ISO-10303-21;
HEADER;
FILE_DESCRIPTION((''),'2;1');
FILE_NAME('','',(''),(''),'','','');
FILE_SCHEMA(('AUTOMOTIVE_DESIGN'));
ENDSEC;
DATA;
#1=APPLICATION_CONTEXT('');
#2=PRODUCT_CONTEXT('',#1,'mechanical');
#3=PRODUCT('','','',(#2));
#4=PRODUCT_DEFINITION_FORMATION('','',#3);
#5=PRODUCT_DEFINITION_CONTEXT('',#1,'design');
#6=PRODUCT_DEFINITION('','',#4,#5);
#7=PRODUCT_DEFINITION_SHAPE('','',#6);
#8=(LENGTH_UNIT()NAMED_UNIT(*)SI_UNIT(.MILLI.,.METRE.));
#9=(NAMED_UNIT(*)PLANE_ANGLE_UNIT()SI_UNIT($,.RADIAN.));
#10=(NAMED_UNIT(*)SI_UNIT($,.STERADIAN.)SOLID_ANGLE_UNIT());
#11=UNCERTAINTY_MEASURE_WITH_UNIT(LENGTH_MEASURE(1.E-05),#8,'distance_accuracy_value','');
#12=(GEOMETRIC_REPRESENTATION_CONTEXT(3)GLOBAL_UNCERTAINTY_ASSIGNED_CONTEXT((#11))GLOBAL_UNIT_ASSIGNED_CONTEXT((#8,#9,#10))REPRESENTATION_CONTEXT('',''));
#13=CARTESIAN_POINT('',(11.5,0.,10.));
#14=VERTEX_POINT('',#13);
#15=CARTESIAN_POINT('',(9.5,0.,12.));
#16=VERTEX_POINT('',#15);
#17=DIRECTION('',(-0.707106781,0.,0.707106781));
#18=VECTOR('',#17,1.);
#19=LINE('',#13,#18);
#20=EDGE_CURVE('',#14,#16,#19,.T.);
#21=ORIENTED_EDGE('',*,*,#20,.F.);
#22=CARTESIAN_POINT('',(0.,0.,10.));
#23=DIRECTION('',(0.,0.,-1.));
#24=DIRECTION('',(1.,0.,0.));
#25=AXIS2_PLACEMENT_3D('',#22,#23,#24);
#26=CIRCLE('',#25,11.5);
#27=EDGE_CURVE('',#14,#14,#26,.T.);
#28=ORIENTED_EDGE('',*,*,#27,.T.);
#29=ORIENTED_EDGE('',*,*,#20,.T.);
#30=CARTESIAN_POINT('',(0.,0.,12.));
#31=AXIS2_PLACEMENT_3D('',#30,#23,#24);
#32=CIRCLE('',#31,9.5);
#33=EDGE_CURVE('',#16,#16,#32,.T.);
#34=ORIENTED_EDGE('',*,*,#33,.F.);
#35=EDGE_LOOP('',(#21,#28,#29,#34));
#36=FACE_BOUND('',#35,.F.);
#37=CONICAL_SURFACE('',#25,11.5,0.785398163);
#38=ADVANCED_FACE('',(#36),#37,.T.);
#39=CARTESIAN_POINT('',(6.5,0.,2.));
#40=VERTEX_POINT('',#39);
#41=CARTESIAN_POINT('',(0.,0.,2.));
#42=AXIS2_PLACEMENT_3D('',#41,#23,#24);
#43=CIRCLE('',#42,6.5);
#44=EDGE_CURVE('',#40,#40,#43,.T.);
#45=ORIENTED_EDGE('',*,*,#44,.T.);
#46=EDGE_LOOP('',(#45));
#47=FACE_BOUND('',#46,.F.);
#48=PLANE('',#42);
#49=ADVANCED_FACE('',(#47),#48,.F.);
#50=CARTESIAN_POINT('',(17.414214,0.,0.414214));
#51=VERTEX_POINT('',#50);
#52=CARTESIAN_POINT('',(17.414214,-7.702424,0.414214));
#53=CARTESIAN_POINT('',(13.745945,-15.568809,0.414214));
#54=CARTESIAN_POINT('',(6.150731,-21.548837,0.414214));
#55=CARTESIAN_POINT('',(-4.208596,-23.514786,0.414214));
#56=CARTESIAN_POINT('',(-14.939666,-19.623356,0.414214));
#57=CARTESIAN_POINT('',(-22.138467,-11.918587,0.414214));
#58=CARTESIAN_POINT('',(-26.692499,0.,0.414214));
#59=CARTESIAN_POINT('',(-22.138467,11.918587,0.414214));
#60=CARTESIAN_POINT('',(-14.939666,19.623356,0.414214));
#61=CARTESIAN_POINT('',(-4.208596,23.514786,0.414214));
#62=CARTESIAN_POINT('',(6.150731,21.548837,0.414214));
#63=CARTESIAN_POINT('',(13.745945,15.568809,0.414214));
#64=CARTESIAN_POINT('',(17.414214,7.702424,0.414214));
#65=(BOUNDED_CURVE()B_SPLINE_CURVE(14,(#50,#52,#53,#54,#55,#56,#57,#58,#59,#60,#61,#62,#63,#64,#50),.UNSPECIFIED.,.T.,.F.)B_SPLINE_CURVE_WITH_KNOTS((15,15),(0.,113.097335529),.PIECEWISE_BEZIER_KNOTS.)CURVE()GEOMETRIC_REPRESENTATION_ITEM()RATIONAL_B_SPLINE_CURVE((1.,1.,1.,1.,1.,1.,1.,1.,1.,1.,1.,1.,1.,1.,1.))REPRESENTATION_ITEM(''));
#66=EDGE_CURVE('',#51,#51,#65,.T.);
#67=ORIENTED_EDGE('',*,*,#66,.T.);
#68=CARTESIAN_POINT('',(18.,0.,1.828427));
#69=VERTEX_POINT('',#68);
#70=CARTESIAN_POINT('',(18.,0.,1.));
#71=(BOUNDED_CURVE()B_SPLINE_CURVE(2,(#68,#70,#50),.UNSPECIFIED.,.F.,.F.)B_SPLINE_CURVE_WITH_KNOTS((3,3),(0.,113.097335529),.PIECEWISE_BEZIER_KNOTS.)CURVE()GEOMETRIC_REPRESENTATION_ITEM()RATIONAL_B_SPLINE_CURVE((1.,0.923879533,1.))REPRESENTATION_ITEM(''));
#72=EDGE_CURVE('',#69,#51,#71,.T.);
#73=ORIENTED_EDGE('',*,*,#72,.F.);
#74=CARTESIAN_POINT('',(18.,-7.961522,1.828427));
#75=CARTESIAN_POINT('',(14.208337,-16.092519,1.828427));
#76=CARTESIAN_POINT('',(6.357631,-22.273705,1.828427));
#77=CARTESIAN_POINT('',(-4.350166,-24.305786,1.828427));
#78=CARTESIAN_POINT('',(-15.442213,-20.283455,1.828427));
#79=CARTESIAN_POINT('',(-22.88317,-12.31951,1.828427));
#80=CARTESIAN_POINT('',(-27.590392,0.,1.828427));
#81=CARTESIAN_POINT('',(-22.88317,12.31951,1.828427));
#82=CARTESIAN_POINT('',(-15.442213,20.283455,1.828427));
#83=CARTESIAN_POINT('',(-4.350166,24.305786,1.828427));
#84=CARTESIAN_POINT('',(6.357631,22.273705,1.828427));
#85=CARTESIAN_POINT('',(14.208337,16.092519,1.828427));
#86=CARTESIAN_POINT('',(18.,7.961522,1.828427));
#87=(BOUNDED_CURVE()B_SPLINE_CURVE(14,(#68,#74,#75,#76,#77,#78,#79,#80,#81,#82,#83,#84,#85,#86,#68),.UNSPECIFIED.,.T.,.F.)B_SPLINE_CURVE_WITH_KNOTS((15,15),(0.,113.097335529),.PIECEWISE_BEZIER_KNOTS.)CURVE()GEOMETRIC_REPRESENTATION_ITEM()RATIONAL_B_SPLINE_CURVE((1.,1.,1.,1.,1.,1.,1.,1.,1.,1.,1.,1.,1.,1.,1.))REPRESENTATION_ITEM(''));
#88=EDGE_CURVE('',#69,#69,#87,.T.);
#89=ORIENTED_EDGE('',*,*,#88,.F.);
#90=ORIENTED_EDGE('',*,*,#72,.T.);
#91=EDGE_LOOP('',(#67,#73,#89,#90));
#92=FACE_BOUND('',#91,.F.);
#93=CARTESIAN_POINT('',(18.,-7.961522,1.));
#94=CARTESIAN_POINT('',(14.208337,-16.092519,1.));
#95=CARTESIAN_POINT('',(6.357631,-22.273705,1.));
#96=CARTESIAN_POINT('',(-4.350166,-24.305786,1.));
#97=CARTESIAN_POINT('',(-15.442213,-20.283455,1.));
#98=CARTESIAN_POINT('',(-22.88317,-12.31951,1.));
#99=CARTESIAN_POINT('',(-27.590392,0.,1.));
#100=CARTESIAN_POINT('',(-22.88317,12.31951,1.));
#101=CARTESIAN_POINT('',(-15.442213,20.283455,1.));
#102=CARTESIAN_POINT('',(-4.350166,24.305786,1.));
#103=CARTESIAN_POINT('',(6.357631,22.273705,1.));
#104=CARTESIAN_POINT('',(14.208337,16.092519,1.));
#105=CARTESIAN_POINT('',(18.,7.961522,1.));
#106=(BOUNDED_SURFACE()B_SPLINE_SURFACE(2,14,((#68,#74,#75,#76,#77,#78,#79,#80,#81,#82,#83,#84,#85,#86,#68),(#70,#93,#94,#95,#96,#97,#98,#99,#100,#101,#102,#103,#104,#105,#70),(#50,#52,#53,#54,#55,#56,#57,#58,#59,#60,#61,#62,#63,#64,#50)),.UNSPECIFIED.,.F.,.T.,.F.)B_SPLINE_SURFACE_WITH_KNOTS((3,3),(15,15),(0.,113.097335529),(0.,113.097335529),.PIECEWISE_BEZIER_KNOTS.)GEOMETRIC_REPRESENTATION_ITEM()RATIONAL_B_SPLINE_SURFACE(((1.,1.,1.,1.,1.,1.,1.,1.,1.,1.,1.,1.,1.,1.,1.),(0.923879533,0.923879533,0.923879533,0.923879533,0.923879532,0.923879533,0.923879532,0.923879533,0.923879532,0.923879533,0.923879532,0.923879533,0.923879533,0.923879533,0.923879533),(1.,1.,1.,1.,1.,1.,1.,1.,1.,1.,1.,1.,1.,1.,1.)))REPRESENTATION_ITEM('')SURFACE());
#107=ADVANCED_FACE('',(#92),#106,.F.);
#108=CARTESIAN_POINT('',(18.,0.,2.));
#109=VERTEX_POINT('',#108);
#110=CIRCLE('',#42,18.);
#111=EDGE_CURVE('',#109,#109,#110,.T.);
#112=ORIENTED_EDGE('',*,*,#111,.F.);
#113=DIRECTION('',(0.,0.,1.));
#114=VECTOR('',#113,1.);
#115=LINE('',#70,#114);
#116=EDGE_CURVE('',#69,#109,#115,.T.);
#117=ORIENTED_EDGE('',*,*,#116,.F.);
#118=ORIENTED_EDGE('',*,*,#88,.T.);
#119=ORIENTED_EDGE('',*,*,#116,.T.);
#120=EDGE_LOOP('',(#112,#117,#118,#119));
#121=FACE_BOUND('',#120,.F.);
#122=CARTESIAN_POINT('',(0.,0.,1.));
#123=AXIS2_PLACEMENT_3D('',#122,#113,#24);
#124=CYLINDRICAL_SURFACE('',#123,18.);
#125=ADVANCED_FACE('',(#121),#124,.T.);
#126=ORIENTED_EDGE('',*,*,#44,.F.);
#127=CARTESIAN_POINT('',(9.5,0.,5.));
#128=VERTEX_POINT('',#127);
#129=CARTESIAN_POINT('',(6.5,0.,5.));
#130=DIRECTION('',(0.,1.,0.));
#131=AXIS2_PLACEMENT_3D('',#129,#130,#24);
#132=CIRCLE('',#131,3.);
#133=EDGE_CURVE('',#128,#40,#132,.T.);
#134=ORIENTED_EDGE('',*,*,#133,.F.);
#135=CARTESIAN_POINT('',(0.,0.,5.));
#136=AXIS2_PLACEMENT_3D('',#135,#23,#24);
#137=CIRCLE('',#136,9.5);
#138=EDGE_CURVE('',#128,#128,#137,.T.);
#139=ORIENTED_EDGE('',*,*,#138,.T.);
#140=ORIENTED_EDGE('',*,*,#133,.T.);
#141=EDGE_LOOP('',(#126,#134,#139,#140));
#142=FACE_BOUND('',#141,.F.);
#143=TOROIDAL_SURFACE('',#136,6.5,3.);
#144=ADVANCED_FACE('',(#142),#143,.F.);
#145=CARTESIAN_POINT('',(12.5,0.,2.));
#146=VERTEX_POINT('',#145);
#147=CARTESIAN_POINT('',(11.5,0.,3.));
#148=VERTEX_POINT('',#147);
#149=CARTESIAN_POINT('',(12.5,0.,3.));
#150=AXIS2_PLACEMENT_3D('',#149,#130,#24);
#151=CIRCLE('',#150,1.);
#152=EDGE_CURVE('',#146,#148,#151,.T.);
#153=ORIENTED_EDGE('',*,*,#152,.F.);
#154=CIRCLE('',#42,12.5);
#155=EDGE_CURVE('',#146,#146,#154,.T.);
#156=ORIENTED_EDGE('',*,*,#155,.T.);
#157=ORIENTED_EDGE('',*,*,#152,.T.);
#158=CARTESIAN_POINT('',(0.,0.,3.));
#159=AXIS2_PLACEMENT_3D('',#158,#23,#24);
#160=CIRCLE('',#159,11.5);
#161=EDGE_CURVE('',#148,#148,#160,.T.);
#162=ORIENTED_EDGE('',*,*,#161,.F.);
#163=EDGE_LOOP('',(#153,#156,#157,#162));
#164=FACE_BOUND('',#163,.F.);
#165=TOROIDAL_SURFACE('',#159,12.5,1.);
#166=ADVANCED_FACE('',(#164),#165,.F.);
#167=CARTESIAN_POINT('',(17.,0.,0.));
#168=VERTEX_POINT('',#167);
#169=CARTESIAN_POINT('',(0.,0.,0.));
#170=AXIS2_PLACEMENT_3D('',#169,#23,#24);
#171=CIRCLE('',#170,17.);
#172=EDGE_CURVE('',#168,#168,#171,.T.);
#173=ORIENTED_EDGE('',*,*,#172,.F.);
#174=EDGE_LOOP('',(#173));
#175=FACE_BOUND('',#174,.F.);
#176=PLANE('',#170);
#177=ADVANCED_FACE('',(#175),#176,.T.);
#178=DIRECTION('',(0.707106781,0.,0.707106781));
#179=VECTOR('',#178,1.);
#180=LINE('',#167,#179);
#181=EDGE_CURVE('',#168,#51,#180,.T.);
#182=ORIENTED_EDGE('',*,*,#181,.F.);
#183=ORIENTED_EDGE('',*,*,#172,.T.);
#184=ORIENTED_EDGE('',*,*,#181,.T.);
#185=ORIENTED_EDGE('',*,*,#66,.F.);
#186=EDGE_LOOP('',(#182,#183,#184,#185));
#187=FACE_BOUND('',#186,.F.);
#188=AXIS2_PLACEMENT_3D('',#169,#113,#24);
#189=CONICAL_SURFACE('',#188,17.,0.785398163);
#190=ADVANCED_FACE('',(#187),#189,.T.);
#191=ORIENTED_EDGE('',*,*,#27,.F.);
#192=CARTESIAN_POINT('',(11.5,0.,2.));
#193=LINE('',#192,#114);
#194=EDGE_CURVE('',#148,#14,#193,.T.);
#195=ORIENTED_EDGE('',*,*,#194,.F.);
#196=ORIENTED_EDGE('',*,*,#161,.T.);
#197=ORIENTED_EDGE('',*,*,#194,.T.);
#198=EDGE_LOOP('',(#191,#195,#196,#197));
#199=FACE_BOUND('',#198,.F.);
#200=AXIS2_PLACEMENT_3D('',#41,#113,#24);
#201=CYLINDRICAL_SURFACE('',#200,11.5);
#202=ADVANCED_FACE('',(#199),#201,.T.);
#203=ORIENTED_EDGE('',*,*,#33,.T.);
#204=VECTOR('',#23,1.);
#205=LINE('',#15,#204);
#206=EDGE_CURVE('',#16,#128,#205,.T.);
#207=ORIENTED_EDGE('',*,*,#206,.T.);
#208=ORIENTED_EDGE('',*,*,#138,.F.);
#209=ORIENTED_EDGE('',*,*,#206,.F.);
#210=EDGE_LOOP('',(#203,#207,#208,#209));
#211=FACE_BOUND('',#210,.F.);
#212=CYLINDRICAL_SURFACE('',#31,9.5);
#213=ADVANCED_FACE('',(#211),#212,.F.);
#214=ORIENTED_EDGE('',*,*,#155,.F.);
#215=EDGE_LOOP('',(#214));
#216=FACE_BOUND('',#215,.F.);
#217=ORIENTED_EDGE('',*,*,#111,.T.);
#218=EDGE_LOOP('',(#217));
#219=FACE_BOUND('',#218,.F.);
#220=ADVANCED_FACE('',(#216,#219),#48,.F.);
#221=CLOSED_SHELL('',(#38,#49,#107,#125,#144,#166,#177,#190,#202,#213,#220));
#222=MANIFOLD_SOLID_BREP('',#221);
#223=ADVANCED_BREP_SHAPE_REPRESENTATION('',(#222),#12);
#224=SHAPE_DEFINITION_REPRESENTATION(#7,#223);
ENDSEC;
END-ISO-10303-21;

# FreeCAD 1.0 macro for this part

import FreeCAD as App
import Part
import Sketcher
Q = App.Units.Quantity


def edges_at(feature, points):
    """Names of the edges that pass closest to the given points."""
    edges = feature.Shape.Edges
    near = lambda p: min(range(len(edges)), key=lambda i: edges[i].distToShape(Part.Vertex(*p))[0])
    return sorted({f"Edge{near(p) + 1}" for p in points})

doc = App.newDocument("Part")
body = doc.addObject("PartDesign::Body", "Body")

# Sketch on XZ plane
sketch1 = body.newObject("Sketcher::SketchObject", "Sketch")
sketch1.AttachmentSupport = (doc.getObject("XZ_Plane"), [""])
sketch1.MapMode = "FlatFace"
sketch1.addGeometry([
    Part.LineSegment(App.Vector(0, 2, 0), App.Vector(0, 0, 0)),  # 0
    Part.LineSegment(App.Vector(0, 0, 0), App.Vector(17, 0, 0)),  # 1
    Part.LineSegment(App.Vector(17, 0, 0), App.Vector(18, 1, 0)),  # 2
    Part.LineSegment(App.Vector(18, 1, 0), App.Vector(18, 2, 0)),  # 3
    Part.LineSegment(App.Vector(18, 2, 0), App.Vector(11.5, 2, 0)),  # 4
    Part.LineSegment(App.Vector(11.5, 2, 0), App.Vector(11.5, 10, 0)),  # 5
    Part.LineSegment(App.Vector(11.5, 10, 0), App.Vector(9.5, 12, 0)),  # 6
    Part.LineSegment(App.Vector(9.5, 12, 0), App.Vector(9.5, 2, 0)),  # 7
    Part.LineSegment(App.Vector(9.5, 2, 0), App.Vector(0, 2, 0)),  # 8
], False)
sketch1.addConstraint([
    Sketcher.Constraint("Coincident", 0, 2, 1, 1),
    Sketcher.Constraint("Coincident", 1, 2, 2, 1),
    Sketcher.Constraint("Coincident", 2, 2, 3, 1),
    Sketcher.Constraint("Coincident", 3, 2, 4, 1),
    Sketcher.Constraint("Coincident", 4, 2, 5, 1),
    Sketcher.Constraint("Coincident", 5, 2, 6, 1),
    Sketcher.Constraint("Coincident", 6, 2, 7, 1),
    Sketcher.Constraint("Coincident", 7, 2, 8, 1),
    Sketcher.Constraint("Coincident", 8, 2, 0, 1),
    Sketcher.Constraint("Vertical", 0),
    Sketcher.Constraint("Horizontal", 1),
    Sketcher.Constraint("Vertical", 3),
    Sketcher.Constraint("Horizontal", 4),
    Sketcher.Constraint("Vertical", 5),
    Sketcher.Constraint("Vertical", 7),
    Sketcher.Constraint("Horizontal", 8),
    Sketcher.Constraint("Coincident", 0, 2, -1, 1),
    Sketcher.Constraint("Perpendicular", 2, 6),
    Sketcher.Constraint("Horizontal", 4, 2, 7, 2),
    Sketcher.Constraint("DistanceX", 1, 1, 1, 2, 17.0),
    Sketcher.Constraint("DistanceY", 0, 2, 0, 1, 2.0),
    Sketcher.Constraint("DistanceY", 3, 1, 3, 2, 1.0),
    Sketcher.Constraint("DistanceY", 5, 1, 5, 2, 8.0),
    Sketcher.Constraint("DistanceY", 7, 2, 7, 1, 10.0),
    Sketcher.Constraint("Angle", 2, Q("45 deg")),
    Sketcher.Constraint("DistanceX", 4, 2, 4, 1, 6.5),
])
revolution = body.newObject("PartDesign::Revolution", "Revolution")
revolution.Profile = sketch1
revolution.ReferenceAxis = (sketch1, ["V_Axis"])
revolution.Angle = 360
doc.recompute()

fillet = body.newObject("PartDesign::Fillet", "Fillet")
fillet.Base = (revolution, edges_at(revolution, [(-9.5, 0, 2)]))
fillet.Radius = 3
doc.recompute()

fillet2 = body.newObject("PartDesign::Fillet", "Fillet001")
fillet2.Base = (fillet, edges_at(fillet, [(-18, 0, 1)]))
fillet2.Radius = 2
doc.recompute()

fillet3 = body.newObject("PartDesign::Fillet", "Fillet002")
fillet3.Base = (fillet2, edges_at(fillet2, [(-11.5, 0, 2)]))
fillet3.Radius = 1

doc.recompute()
